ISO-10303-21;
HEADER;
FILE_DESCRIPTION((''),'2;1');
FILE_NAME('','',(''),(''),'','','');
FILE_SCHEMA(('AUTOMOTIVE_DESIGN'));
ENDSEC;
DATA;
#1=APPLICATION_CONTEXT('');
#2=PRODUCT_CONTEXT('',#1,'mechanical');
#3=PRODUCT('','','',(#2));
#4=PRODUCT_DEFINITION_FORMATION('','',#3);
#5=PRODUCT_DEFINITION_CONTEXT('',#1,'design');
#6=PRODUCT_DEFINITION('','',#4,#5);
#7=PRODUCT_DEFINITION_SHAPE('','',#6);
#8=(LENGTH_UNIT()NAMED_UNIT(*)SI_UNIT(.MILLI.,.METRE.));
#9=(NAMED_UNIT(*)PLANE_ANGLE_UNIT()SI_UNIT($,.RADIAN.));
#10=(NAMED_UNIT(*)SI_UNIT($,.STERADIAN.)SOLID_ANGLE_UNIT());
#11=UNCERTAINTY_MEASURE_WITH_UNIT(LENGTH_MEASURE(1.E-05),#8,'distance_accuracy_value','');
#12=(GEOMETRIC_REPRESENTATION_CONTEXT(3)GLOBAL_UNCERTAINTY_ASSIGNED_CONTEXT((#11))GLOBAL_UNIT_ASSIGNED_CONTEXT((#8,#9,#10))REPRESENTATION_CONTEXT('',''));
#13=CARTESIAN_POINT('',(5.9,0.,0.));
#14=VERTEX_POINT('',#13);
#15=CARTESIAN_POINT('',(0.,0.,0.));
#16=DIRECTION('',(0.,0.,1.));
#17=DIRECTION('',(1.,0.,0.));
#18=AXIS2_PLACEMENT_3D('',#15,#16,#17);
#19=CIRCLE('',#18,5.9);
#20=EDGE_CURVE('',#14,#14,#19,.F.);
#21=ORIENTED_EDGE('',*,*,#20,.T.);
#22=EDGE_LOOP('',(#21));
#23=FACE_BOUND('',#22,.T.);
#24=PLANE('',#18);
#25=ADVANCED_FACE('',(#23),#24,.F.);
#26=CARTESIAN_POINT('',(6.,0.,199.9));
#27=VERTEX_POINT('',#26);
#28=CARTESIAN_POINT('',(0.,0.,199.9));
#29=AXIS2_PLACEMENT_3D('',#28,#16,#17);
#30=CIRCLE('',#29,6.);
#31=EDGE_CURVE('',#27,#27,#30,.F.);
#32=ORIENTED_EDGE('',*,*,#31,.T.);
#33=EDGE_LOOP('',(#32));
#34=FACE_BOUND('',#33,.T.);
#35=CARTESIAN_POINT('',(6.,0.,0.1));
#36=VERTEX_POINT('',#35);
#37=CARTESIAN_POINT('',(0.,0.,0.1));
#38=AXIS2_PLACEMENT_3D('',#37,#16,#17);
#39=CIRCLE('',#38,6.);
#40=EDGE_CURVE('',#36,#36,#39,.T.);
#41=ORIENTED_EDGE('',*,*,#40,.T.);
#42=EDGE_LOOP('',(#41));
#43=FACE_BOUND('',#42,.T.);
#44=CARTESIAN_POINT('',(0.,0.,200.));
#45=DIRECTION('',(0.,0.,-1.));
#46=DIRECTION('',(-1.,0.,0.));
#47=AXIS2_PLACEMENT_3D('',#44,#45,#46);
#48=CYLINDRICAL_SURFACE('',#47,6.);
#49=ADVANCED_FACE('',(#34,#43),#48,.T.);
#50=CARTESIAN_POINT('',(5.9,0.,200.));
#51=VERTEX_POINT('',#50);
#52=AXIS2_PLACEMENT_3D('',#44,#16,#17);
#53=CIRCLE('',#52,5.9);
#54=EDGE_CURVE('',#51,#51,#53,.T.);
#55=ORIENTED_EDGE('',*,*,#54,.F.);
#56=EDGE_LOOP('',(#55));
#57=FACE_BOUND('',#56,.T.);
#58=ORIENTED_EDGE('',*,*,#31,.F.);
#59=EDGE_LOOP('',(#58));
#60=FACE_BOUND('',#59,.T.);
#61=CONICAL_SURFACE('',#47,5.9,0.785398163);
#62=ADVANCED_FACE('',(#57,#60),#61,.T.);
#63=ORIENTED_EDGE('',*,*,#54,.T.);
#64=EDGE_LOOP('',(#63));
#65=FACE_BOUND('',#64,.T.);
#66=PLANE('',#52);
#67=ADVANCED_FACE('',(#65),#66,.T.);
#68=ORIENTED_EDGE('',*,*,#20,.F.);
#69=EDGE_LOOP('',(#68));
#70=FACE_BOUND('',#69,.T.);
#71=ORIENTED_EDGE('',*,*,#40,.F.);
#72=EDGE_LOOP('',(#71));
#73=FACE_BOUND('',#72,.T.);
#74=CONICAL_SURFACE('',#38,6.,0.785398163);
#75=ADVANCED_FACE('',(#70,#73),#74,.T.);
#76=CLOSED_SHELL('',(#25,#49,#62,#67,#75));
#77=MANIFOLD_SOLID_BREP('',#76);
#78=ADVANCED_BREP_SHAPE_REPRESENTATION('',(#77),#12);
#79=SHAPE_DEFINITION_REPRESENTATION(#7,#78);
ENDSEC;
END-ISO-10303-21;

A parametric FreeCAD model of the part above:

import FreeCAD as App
import Part
import Sketcher


def edges_at(feature, points):
    """Names of the edges that pass closest to the given points."""
    edges = feature.Shape.Edges
    near = lambda p: min(range(len(edges)), key=lambda i: edges[i].distToShape(Part.Vertex(*p))[0])
    return sorted({f"Edge{near(p) + 1}" for p in points})

doc = App.newDocument("Part")
body = doc.addObject("PartDesign::Body", "Body")

# Sketch on XY plane
sketch1 = body.newObject("Sketcher::SketchObject", "Sketch")
sketch1.AttachmentSupport = (doc.getObject("XY_Plane"), [""])
sketch1.MapMode = "FlatFace"
sketch1.addGeometry(Part.Circle(App.Vector(0, 0, 0), App.Vector(0, 0, 1), 6), False)
sketch1.addConstraint(Sketcher.Constraint("Coincident", 0, 3, -1, 1))
sketch1.addConstraint(Sketcher.Constraint("Diameter", 0, 12.0))
pad1 = body.newObject("PartDesign::Pad", "Pad")
pad1.Profile = sketch1
pad1.Length = 200
doc.recompute()

chamfer = body.newObject("PartDesign::Chamfer", "Chamfer")
chamfer.Base = (pad1, edges_at(pad1, [(-6, 0, 0), (-6, 0, 200)]))
chamfer.Size = 0.1

doc.recompute()
